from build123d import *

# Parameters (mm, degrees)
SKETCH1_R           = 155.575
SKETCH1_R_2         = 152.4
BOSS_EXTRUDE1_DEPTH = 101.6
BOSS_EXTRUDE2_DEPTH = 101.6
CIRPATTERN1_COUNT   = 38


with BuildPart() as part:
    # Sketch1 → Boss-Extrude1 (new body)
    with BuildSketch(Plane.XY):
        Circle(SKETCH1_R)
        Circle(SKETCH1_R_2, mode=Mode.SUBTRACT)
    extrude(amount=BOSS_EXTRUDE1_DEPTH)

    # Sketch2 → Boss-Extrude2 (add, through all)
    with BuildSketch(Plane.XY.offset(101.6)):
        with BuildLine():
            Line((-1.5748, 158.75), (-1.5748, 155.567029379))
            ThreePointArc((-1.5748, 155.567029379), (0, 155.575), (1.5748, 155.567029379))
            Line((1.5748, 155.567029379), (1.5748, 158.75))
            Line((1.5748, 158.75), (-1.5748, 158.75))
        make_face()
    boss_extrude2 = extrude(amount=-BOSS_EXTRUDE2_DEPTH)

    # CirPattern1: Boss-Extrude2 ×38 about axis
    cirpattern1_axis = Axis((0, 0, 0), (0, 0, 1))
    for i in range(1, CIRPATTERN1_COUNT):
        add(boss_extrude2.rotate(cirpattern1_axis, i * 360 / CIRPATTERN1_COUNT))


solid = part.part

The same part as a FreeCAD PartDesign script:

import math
import FreeCAD as App
import Part
import Sketcher
from FreeCAD import Vector
Q = App.Units.Quantity

doc = App.newDocument("Part")
body = doc.addObject("PartDesign::Body", "Body")

sketch1 = body.newObject("Sketcher::SketchObject", "Sketch")
sketch1.AttachmentSupport = (doc.getObject("XY_Plane"), [""])
sketch1.MapMode = "FlatFace"
sketch1.addGeometry(Part.Circle(Vector(0, 0, 0), Vector(0, 0, 1), 156), False)
sketch1.addGeometry(Part.Circle(Vector(0, 0, 0), Vector(0, 0, 1), 152), False)
sketch1.addConstraint(Sketcher.Constraint("Coincident", 0, 3, -1, 1))
sketch1.addConstraint(Sketcher.Constraint("Coincident", 1, 3, -1, 1))
sketch1.addConstraint(Sketcher.Constraint("Diameter", 1, Q("12 in")))
sketch1.addConstraint(Sketcher.Constraint("Diameter", 0, Q("12.25 in")))
pad1 = body.newObject("PartDesign::Pad", "Pad")
pad1.Profile = sketch1
pad1.Length = Q("4 in")

sketch2 = body.newObject("Sketcher::SketchObject", "Sketch001")
sketch2.AttachmentSupport = (doc.getObject("XY_Plane"), [""])
sketch2.MapMode = "FlatFace"
sketch2.AttachmentOffset = App.Placement(Vector(0, 0, 4 * 25.4), App.Rotation())
sketch2.addGeometry(Part.LineSegment(Vector(-1.6, 158.8, 0), Vector(-1.6, 155.6, 0)), False)
sketch2.addGeometry(Part.ArcOfCircle(Part.Circle(Vector(0, 0, 0), Vector(0, 0, 1), 155.6), math.radians(89.42), math.radians(90.58)), False)
sketch2.addGeometry(Part.LineSegment(Vector(1.6, 155.6, 0), Vector(1.6, 158.8, 0)), False)
sketch2.addGeometry(Part.LineSegment(Vector(1.6, 158.8, 0), Vector(-1.6, 158.8, 0)), False)
sketch2.addConstraint(Sketcher.Constraint("Coincident", 0, 2, 1, 2))
sketch2.addConstraint(Sketcher.Constraint("Coincident", 1, 1, 2, 1))
sketch2.addConstraint(Sketcher.Constraint("Coincident", 2, 2, 3, 1))
sketch2.addConstraint(Sketcher.Constraint("Coincident", 3, 2, 0, 1))
sketch2.addConstraint(Sketcher.Constraint("Vertical", 0))
sketch2.addConstraint(Sketcher.Constraint("Vertical", 2))
sketch2.addConstraint(Sketcher.Constraint("Horizontal", 3))
sketch2.addConstraint(Sketcher.Constraint("Coincident", 1, 3, -1, 1))
sketch2.addConstraint(Sketcher.Constraint("Horizontal", 0, 2, 1, 1))
sketch2.addConstraint(Sketcher.Constraint("DistanceX", 3, 2, 3, 1, Q("0.124 in")))
sketch2.addConstraint(Sketcher.Constraint("DistanceY", -1, 1, 2, 2, Q("6.25 in")))
sketch2.addConstraint(Sketcher.Constraint("Radius", 1, 155.57499))
pad2 = body.newObject("PartDesign::Pad", "Pad001")
pad2.Profile = sketch2
pad2.Length = Q("4 in")
pad2.Reversed = True
doc.recompute()

polarpattern = body.newObject("PartDesign::PolarPattern", "PolarPattern")
polarpattern.Originals = [pad2]
polarpattern.Axis = (doc.getObject("Z_Axis"), [""])
polarpattern.Angle = 360
polarpattern.Occurrences = 38
body.Tip = polarpattern

doc.recompute()
